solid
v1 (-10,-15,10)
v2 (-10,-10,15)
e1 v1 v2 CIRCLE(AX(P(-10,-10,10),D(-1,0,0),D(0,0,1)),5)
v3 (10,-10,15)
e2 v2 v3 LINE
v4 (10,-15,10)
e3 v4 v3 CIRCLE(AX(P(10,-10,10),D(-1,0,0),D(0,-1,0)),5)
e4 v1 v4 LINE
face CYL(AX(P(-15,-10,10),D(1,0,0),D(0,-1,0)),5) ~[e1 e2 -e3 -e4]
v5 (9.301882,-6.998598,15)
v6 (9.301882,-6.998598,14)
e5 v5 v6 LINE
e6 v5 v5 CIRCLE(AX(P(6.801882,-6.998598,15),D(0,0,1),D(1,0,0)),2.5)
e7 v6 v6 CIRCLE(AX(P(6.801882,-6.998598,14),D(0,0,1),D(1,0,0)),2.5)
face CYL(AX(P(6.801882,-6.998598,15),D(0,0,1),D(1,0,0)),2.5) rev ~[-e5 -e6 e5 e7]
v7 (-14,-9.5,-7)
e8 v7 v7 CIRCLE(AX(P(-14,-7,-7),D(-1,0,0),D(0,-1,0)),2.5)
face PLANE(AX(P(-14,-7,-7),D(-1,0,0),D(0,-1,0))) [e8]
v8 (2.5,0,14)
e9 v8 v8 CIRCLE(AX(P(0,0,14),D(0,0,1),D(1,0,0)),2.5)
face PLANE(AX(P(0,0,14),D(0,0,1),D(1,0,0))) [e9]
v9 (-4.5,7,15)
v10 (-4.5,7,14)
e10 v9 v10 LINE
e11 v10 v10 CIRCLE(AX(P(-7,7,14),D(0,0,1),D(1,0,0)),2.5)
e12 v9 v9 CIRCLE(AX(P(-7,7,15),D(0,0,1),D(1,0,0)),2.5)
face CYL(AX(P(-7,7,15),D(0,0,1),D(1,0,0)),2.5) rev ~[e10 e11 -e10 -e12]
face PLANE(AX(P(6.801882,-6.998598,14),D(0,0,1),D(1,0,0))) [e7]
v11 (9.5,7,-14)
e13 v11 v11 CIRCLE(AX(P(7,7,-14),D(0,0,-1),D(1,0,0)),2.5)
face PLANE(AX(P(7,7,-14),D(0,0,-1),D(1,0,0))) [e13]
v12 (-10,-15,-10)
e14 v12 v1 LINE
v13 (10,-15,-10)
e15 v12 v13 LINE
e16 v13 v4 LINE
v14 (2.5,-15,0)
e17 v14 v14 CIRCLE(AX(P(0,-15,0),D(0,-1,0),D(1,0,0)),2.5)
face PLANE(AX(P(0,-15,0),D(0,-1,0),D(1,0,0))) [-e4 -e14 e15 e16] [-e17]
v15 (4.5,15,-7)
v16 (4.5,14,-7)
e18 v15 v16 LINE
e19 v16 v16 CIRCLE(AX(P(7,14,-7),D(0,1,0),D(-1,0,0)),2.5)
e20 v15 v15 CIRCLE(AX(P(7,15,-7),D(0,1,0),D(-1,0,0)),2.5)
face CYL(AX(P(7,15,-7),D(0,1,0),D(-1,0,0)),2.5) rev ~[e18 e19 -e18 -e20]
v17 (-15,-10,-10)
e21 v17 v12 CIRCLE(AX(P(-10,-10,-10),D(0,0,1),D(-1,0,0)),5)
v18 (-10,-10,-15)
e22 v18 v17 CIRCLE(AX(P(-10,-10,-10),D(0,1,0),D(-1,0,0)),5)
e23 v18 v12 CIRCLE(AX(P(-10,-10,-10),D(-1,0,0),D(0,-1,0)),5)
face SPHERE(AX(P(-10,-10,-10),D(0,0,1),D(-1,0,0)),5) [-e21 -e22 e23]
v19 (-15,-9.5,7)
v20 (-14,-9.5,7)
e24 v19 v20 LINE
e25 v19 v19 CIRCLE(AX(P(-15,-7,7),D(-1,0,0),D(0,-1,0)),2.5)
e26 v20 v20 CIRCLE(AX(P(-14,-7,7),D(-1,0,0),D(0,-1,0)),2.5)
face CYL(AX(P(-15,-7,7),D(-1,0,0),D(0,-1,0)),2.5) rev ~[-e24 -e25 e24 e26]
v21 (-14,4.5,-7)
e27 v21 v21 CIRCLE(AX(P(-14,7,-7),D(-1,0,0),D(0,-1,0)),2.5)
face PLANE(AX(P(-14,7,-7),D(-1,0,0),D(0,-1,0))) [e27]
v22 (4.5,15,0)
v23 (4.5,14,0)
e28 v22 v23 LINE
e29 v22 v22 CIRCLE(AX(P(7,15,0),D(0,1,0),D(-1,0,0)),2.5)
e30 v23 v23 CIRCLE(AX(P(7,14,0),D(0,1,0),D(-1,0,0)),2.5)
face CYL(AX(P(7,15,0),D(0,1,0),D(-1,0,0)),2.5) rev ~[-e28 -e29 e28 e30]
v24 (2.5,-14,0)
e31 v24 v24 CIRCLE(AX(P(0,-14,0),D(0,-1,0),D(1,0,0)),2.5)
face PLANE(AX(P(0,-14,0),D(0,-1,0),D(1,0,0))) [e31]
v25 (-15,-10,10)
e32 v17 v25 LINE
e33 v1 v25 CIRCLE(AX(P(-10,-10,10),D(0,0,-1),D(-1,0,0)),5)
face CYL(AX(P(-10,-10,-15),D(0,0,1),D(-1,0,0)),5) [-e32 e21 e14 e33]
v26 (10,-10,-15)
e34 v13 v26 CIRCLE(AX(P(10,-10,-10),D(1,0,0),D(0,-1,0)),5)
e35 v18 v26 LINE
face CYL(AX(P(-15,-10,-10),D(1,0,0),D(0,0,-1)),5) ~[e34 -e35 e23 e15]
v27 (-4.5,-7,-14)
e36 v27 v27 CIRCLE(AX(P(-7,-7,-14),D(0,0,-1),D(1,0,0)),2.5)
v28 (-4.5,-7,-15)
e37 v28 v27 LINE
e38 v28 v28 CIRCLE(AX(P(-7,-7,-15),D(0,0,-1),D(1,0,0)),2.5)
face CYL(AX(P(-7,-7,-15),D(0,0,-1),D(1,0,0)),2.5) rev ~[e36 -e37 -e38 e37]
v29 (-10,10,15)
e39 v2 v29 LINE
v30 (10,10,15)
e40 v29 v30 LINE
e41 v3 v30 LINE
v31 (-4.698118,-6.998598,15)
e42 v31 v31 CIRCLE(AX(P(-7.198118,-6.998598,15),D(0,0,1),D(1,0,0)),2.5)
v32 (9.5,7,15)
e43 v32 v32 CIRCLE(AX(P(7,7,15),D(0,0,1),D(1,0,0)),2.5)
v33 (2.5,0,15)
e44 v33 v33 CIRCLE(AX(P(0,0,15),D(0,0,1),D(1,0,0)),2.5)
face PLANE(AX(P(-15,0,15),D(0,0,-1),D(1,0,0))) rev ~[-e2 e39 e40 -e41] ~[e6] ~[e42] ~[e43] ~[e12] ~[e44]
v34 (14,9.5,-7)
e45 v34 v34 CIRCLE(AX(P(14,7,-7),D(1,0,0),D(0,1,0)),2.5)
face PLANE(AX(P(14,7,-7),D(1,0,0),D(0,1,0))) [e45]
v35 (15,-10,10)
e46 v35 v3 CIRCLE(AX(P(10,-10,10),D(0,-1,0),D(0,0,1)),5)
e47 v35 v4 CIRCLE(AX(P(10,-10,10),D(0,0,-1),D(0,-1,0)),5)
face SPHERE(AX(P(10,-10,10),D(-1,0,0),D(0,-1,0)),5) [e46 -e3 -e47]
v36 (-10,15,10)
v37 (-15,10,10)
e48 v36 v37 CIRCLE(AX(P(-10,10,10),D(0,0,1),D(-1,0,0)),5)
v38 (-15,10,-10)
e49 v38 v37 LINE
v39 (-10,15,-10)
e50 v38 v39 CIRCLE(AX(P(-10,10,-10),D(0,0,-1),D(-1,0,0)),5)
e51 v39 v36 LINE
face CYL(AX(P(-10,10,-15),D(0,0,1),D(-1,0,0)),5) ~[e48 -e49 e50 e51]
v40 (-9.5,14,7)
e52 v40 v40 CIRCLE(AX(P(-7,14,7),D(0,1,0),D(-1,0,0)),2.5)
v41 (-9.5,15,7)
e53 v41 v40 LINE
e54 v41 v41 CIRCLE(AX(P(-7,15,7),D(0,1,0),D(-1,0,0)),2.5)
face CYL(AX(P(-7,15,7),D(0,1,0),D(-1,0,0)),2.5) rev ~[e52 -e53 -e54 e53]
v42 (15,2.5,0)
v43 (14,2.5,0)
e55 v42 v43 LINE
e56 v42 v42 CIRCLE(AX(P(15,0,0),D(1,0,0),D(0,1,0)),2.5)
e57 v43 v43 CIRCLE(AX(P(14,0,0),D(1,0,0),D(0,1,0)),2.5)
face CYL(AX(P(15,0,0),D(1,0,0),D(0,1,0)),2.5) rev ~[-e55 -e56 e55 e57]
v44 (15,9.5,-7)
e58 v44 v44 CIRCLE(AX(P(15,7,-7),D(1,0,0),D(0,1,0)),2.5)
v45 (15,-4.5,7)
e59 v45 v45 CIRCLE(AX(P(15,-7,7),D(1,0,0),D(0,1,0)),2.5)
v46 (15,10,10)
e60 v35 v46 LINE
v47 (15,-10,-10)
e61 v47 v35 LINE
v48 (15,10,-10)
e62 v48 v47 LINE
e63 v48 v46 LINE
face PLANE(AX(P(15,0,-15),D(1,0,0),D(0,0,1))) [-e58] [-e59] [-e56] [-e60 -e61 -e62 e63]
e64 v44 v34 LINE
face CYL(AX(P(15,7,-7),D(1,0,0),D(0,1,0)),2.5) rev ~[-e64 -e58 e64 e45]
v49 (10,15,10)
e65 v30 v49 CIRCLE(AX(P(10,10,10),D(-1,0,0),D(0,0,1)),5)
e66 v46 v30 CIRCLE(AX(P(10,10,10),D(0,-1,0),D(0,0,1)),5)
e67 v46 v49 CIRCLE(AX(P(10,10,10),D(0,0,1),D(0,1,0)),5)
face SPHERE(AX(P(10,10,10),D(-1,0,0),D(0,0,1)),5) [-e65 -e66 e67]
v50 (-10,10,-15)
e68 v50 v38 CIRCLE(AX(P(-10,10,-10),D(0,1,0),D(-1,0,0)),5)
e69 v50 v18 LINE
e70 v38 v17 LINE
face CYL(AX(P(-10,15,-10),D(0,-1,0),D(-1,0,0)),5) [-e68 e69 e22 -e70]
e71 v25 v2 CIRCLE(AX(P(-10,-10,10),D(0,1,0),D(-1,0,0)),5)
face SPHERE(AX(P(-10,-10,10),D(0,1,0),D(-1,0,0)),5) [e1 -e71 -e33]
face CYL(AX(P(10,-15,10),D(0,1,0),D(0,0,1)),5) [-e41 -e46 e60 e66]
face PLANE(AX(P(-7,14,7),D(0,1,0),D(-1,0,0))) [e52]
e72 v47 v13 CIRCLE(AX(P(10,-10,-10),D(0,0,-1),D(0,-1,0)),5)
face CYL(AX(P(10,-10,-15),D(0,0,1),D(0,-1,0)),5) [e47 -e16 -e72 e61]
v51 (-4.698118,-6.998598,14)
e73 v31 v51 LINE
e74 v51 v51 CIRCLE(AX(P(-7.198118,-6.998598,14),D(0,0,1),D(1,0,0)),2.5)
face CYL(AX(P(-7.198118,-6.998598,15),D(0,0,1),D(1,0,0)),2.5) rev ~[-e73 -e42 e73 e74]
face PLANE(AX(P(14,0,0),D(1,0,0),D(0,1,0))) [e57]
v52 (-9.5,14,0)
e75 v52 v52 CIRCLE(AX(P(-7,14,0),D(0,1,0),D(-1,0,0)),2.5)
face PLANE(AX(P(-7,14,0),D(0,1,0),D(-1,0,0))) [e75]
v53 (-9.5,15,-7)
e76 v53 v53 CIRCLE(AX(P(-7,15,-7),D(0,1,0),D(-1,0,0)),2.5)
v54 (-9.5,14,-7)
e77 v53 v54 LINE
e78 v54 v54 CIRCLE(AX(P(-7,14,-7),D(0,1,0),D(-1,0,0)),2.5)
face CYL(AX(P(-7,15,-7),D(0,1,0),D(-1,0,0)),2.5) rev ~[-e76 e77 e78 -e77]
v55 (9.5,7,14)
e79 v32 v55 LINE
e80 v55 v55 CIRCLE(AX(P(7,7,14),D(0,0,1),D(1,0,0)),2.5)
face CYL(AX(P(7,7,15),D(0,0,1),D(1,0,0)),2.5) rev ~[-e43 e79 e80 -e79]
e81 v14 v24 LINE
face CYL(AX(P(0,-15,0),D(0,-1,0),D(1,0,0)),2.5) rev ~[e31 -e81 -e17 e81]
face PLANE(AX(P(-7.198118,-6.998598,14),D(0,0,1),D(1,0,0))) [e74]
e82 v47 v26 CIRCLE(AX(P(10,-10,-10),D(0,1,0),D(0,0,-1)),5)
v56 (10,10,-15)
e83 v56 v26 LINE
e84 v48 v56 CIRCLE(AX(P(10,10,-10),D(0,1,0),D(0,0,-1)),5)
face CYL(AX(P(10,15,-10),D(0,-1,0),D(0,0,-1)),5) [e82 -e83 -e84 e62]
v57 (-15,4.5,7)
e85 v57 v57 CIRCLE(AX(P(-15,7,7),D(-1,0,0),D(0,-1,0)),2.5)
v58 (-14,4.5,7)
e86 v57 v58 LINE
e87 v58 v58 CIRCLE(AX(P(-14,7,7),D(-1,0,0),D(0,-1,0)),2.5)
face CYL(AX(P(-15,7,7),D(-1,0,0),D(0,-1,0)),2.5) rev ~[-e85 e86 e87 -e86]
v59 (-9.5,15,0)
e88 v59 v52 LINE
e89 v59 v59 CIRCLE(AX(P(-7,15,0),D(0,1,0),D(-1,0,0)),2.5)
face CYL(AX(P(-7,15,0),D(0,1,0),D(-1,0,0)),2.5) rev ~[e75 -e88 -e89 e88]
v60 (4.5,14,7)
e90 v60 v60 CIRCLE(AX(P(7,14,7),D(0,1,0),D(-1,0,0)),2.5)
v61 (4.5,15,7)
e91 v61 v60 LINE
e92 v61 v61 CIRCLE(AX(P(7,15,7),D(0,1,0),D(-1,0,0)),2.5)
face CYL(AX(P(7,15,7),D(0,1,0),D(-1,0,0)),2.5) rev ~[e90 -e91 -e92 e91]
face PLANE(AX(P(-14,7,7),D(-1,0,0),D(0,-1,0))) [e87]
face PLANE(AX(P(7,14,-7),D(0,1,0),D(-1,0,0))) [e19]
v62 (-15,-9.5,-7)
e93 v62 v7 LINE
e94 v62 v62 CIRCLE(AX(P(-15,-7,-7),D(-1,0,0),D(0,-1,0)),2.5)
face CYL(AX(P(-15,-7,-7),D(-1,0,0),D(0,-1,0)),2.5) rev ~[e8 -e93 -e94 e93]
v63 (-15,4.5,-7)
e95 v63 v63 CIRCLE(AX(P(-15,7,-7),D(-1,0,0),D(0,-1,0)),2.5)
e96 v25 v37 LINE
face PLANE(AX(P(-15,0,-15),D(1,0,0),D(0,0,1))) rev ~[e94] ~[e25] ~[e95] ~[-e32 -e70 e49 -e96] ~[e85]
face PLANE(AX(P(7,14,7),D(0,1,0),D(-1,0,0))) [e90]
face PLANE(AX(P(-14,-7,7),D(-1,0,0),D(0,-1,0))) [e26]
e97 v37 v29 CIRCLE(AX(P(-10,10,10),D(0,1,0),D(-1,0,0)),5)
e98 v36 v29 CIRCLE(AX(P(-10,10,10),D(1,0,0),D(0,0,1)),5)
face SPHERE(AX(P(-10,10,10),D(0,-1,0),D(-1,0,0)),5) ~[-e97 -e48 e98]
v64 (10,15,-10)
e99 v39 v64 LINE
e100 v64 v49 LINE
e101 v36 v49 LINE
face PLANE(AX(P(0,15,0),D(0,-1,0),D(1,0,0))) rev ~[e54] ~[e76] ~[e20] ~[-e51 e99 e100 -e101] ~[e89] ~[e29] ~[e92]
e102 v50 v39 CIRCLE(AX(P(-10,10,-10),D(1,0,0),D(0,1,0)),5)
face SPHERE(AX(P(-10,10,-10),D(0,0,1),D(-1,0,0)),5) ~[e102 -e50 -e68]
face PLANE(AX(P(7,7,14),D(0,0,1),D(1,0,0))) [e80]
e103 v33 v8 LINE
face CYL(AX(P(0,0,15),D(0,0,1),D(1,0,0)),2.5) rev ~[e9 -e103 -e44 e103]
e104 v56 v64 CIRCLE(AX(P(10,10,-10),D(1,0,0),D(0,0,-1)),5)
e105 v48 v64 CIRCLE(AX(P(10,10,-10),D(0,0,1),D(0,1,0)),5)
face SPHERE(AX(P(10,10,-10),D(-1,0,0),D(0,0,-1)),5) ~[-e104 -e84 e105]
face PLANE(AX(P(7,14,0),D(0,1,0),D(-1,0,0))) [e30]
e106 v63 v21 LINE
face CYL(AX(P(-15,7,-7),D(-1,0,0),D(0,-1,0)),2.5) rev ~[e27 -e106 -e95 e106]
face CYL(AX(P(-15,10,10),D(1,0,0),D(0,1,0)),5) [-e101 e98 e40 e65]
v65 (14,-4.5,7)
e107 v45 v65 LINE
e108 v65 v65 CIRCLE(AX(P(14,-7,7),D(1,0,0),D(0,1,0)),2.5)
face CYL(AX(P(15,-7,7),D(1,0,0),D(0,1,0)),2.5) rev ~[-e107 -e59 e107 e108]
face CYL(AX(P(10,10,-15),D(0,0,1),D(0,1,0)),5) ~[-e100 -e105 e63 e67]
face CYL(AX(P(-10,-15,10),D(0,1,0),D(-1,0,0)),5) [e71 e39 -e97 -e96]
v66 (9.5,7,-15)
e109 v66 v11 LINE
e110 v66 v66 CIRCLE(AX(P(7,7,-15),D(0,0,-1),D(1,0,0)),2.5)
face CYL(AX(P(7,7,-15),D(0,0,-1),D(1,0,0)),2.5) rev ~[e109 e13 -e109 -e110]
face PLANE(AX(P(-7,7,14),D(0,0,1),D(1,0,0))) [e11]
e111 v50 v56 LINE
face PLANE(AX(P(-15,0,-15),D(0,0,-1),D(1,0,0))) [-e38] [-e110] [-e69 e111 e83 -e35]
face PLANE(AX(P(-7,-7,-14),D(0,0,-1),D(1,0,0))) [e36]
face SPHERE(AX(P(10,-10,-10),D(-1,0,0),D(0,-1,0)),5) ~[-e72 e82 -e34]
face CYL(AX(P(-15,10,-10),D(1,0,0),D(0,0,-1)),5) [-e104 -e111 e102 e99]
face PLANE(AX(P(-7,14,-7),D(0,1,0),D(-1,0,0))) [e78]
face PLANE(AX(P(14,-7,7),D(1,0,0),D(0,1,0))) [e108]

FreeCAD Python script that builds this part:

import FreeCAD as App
import Part
import Sketcher
Q = App.Units.Quantity


def edges_at(feature, points):
    """Names of the edges that pass closest to the given points."""
    edges = feature.Shape.Edges
    near = lambda p: min(range(len(edges)), key=lambda i: edges[i].distToShape(Part.Vertex(*p))[0])
    return sorted({f"Edge{near(p) + 1}" for p in points})


def add_polygon(sketch, points):
    """Adds a closed chain of lines whose ends are joined by coincident constraints."""
    first, n = sketch.GeometryCount, len(points)
    for a, b in zip(points, points[1:] + points[:1]):
        sketch.addGeometry(Part.LineSegment(App.Vector(*a, 0), App.Vector(*b, 0)), False)
    for i in range(n):
        sketch.addConstraint(Sketcher.Constraint("Coincident", first + i, 2, first + (i + 1) % n, 1))

doc = App.newDocument("Part")
params = doc.addObject("Spreadsheet::Sheet", "Params")
for row, (alias, value) in enumerate([
    ("sketch1_width", "30 mm"),
    ("pad1_length", "30 mm"),
    ("sketch2_diameter", "5 mm"),
    ("pocket1_length", "1 mm"),
    ("sketch3_diameter", "5 mm"),
    ("pocket2_length", "1 mm"),
    ("sketch4_diameter", "5 mm"),
    ("pocket3_length", "1 mm"),
    ("sketch5_diameter", "5 mm"),
    ("pocket4_length", "1 mm"),
    ("sketch6_diameter", "5 mm"),
    ("pocket5_length", "1 mm"),
    ("sketch7_diameter", "5 mm"),
    ("pocket6_length", "1 mm"),
    ("fillet_radius", "5 mm"),
], start=1):
    params.set(f"A{row}", alias)
    params.set(f"B{row}", "=" + value)
    params.setAlias(f"B{row}", alias)

body = doc.addObject("PartDesign::Body", "Body")

sketch1 = body.newObject("Sketcher::SketchObject", "Sketch")
sketch1.AttachmentSupport = (doc.getObject("XZ_Plane"), [""])
sketch1.MapMode = "FlatFace"
add_polygon(sketch1, [(-15, 15), (-15, -15), (15, -15), (15, 15)])
sketch1.addConstraint([
    Sketcher.Constraint("Vertical", 0),
    Sketcher.Constraint("Horizontal", 1),
    Sketcher.Constraint("Vertical", 2),
    Sketcher.Constraint("Horizontal", 3),
    Sketcher.Constraint("Symmetric", 0, 2, 2, 2, -1, 1),
    Sketcher.Constraint("Equal", 3, 0),
    Sketcher.Constraint("DistanceX", 1, 1, 1, 2, Q("30 mm")),
])
sketch1.setExpression("Constraints[10]", "Params.sketch1_width")
pad1 = body.newObject("PartDesign::Pad", "Pad")
pad1.Profile = sketch1
pad1.setExpression("Length", "Params.pad1_length")
pad1.Midplane = True

sketch2 = body.newObject("Sketcher::SketchObject", "Sketch001")
sketch2.AttachmentSupport = (doc.getObject("XZ_Plane"), [""])
sketch2.MapMode = "FlatFace"
sketch2.AttachmentOffset = App.Placement(App.Vector(0, 0, 15), App.Rotation())
sketch2.addGeometry(Part.Circle(App.Vector(0, 0, 0), App.Vector(0, 0, 1), 2.5), False)
sketch2.addConstraint([
    Sketcher.Constraint("Coincident", 0, 3, -1, 1),
    Sketcher.Constraint("Diameter", 0, Q("5 mm")),
])
sketch2.setExpression("Constraints[1]", "Params.sketch2_diameter")
pocket1 = body.newObject("PartDesign::Pocket", "Pocket")
pocket1.Profile = sketch2
pocket1.setExpression("Length", "Params.pocket1_length")

sketch3 = body.newObject("Sketcher::SketchObject", "Sketch002")
sketch3.AttachmentSupport = (doc.getObject("XZ_Plane"), [""])
sketch3.MapMode = "FlatFace"
sketch3.AttachmentOffset = App.Placement(App.Vector(0, 0, -15), App.Rotation())
sketch3.addGeometry([
    Part.Circle(App.Vector(7, 7, 0), App.Vector(0, 0, 1), 2.5),
    Part.Circle(App.Vector(7, 0, 0), App.Vector(0, 0, 1), 2.5),
    Part.Circle(App.Vector(7, -7, 0), App.Vector(0, 0, 1), 2.5),
    Part.Circle(App.Vector(-7, -7, 0), App.Vector(0, 0, 1), 2.5),
    Part.Circle(App.Vector(-7, 0, 0), App.Vector(0, 0, 1), 2.5),
    Part.Circle(App.Vector(-7, 7, 0), App.Vector(0, 0, 1), 2.5),
], False)
sketch3.addConstraint([
    Sketcher.Constraint("Equal", 0, 1),
    Sketcher.Constraint("Equal", 1, 2),
    Sketcher.Constraint("Equal", 2, 3),
    Sketcher.Constraint("Equal", 3, 4),
    Sketcher.Constraint("Equal", 4, 5),
    Sketcher.Constraint("Symmetric", 0, 3, 3, 3, -1, 1),
    Sketcher.Constraint("Symmetric", 1, 3, 4, 3, -1, 1),
    Sketcher.Constraint("Symmetric", 2, 3, 5, 3, -1, 1),
    Sketcher.Constraint("Symmetric", 2, 3, 3, 3, -2),
    Sketcher.Constraint("PointOnObject", 1, 3, -1),
    Sketcher.Constraint("Vertical", 0, 3, 1, 3),
    Sketcher.Constraint("Diameter", 0, Q("5 mm")),
    Sketcher.Constraint("DistanceX", -1, 1, 0, 3, Q("7 mm")),
    Sketcher.Constraint("DistanceY", -1, 1, 0, 3, Q("7 mm")),
])
sketch3.setExpression("Constraints[11]", "Params.sketch3_diameter")
pocket2 = body.newObject("PartDesign::Pocket", "Pocket001")
pocket2.Profile = sketch3
pocket2.setExpression("Length", "Params.pocket2_length")
pocket2.Reversed = True

sketch4 = body.newObject("Sketcher::SketchObject", "Sketch003")
sketch4.AttachmentSupport = (doc.getObject("YZ_Plane"), [""])
sketch4.MapMode = "FlatFace"
sketch4.AttachmentOffset = App.Placement(App.Vector(0, 0, 15), App.Rotation())
sketch4.addGeometry([
    Part.Circle(App.Vector(-7, 7, 0), App.Vector(0, 0, 1), 2.5),
    Part.Circle(App.Vector(0, 0, 0), App.Vector(0, 0, 1), 2.5),
    Part.Circle(App.Vector(7, -7, 0), App.Vector(0, 0, 1), 2.5),
], False)
sketch4.addConstraint([
    Sketcher.Constraint("Coincident", 1, 3, -1, 1),
    Sketcher.Constraint("Equal", 0, 1),
    Sketcher.Constraint("Equal", 1, 2),
    Sketcher.Constraint("Symmetric", 0, 3, 2, 3, -1, 1),
    Sketcher.Constraint("Diameter", 0, Q("5 mm")),
    Sketcher.Constraint("DistanceX", 0, 3, -1, 1, Q("7 mm")),
    Sketcher.Constraint("DistanceY", -1, 1, 0, 3, Q("7 mm")),
])
sketch4.setExpression("Constraints[4]", "Params.sketch4_diameter")
pocket3 = body.newObject("PartDesign::Pocket", "Pocket002")
pocket3.Profile = sketch4
pocket3.setExpression("Length", "Params.pocket3_length")

sketch5 = body.newObject("Sketcher::SketchObject", "Sketch004")
sketch5.AttachmentSupport = (doc.getObject("YZ_Plane"), [""])
sketch5.MapMode = "FlatFace"
sketch5.AttachmentOffset = App.Placement(App.Vector(0, 0, -15), App.Rotation())
sketch5.addGeometry([
    Part.Circle(App.Vector(7, 7, 0), App.Vector(0, 0, 1), 2.5),
    Part.Circle(App.Vector(-7, 7, 0), App.Vector(0, 0, 1), 2.5),
    Part.Circle(App.Vector(-7, -7, 0), App.Vector(0, 0, 1), 2.5),
    Part.Circle(App.Vector(7, -7, 0), App.Vector(0, 0, 1), 2.5),
], False)
sketch5.addConstraint([
    Sketcher.Constraint("Equal", 0, 1),
    Sketcher.Constraint("Equal", 1, 2),
    Sketcher.Constraint("Equal", 2, 3),
    Sketcher.Constraint("Symmetric", 0, 3, 2, 3, -1, 1),
    Sketcher.Constraint("Symmetric", 1, 3, 3, 3, -1, 1),
    Sketcher.Constraint("Symmetric", 0, 3, 1, 3, -2),
    Sketcher.Constraint("Diameter", 0, Q("5 mm")),
    Sketcher.Constraint("DistanceX", -1, 1, 0, 3, Q("7 mm")),
    Sketcher.Constraint("DistanceY", -1, 1, 0, 3, Q("7 mm")),
])
sketch5.setExpression("Constraints[6]", "Params.sketch5_diameter")
pocket4 = body.newObject("PartDesign::Pocket", "Pocket003")
pocket4.Profile = sketch5
pocket4.setExpression("Length", "Params.pocket4_length")
pocket4.Reversed = True

sketch6 = body.newObject("Sketcher::SketchObject", "Sketch005")
sketch6.AttachmentSupport = (doc.getObject("XY_Plane"), [""])
sketch6.MapMode = "FlatFace"
sketch6.AttachmentOffset = App.Placement(App.Vector(0, 0, 15), App.Rotation())
sketch6.addGeometry([
    Part.Circle(App.Vector(6.8, -7, 0), App.Vector(0, 0, 1), 2.5),
    Part.Circle(App.Vector(-7.2, -7, 0), App.Vector(0, 0, 1), 2.5),
    Part.Circle(App.Vector(0, 0, 0), App.Vector(0, 0, 1), 2.5),
    Part.Circle(App.Vector(7, 7, 0), App.Vector(0, 0, 1), 2.5),
    Part.Circle(App.Vector(-7, 7, 0), App.Vector(0, 0, 1), 2.5),
], False)
sketch6.addConstraint([
    Sketcher.Constraint("Coincident", 2, 3, -1, 1),
    Sketcher.Constraint("Equal", 0, 1),
    Sketcher.Constraint("Equal", 1, 2),
    Sketcher.Constraint("Equal", 2, 3),
    Sketcher.Constraint("Equal", 3, 4),
    Sketcher.Constraint("Symmetric", 3, 3, 4, 3, -2),
    Sketcher.Constraint("Horizontal", 0, 3, 1, 3),
    Sketcher.Constraint("Diameter", 0, Q("5 mm")),
    Sketcher.Constraint("DistanceX", -1, 1, 3, 3, Q("7 mm")),
    Sketcher.Constraint("DistanceY", -1, 1, 3, 3, Q("7 mm")),
    Sketcher.Constraint("DistanceX", 1, 3, 0, 3, Q("14 mm")),
    Sketcher.Constraint("DistanceY", 0, 3, -1, 1, Q("6.998598 mm")),
    Sketcher.Constraint("DistanceX", 0, 3, 3, 3, Q("0.198118 mm")),
])
sketch6.setExpression("Constraints[7]", "Params.sketch6_diameter")
pocket5 = body.newObject("PartDesign::Pocket", "Pocket004")
pocket5.Profile = sketch6
pocket5.setExpression("Length", "Params.pocket5_length")

sketch7 = body.newObject("Sketcher::SketchObject", "Sketch006")
sketch7.AttachmentSupport = (doc.getObject("XY_Plane"), [""])
sketch7.MapMode = "FlatFace"
sketch7.AttachmentOffset = App.Placement(App.Vector(0, 0, -15), App.Rotation())
sketch7.addGeometry([
    Part.Circle(App.Vector(-7, -7, 0), App.Vector(0, 0, 1), 2.5),
    Part.Circle(App.Vector(7, 7, 0), App.Vector(0, 0, 1), 2.5),
], False)
sketch7.addConstraint([
    Sketcher.Constraint("Equal", 0, 1),
    Sketcher.Constraint("Symmetric", 0, 3, 1, 3, -1, 1),
    Sketcher.Constraint("Diameter", 0, Q("5 mm")),
    Sketcher.Constraint("DistanceX", 0, 3, -1, 1, Q("7 mm")),
    Sketcher.Constraint("DistanceY", 0, 3, -1, 1, Q("7 mm")),
])
sketch7.setExpression("Constraints[2]", "Params.sketch7_diameter")
pocket6 = body.newObject("PartDesign::Pocket", "Pocket005")
pocket6.Profile = sketch7
pocket6.setExpression("Length", "Params.pocket6_length")
pocket6.Reversed = True
doc.recompute()

fillet = body.newObject("PartDesign::Fillet", "Fillet")
fillet.Base = (pocket6, edges_at(pocket6, [
    (-15, 0, 15),
    (-15, 15, 0),
    (-15, -15, 0),
    (-15, 0, -15),
    (0, -15, -15),
    (0, -15, 15),
    (15, -15, 0),
    (0, 15, -15),
    (15, 0, -15),
    (0, 15, 15),
    (15, 0, 15),
    (15, 15, 0),
]))
fillet.setExpression("Radius", "Params.fillet_radius")

doc.recompute()
